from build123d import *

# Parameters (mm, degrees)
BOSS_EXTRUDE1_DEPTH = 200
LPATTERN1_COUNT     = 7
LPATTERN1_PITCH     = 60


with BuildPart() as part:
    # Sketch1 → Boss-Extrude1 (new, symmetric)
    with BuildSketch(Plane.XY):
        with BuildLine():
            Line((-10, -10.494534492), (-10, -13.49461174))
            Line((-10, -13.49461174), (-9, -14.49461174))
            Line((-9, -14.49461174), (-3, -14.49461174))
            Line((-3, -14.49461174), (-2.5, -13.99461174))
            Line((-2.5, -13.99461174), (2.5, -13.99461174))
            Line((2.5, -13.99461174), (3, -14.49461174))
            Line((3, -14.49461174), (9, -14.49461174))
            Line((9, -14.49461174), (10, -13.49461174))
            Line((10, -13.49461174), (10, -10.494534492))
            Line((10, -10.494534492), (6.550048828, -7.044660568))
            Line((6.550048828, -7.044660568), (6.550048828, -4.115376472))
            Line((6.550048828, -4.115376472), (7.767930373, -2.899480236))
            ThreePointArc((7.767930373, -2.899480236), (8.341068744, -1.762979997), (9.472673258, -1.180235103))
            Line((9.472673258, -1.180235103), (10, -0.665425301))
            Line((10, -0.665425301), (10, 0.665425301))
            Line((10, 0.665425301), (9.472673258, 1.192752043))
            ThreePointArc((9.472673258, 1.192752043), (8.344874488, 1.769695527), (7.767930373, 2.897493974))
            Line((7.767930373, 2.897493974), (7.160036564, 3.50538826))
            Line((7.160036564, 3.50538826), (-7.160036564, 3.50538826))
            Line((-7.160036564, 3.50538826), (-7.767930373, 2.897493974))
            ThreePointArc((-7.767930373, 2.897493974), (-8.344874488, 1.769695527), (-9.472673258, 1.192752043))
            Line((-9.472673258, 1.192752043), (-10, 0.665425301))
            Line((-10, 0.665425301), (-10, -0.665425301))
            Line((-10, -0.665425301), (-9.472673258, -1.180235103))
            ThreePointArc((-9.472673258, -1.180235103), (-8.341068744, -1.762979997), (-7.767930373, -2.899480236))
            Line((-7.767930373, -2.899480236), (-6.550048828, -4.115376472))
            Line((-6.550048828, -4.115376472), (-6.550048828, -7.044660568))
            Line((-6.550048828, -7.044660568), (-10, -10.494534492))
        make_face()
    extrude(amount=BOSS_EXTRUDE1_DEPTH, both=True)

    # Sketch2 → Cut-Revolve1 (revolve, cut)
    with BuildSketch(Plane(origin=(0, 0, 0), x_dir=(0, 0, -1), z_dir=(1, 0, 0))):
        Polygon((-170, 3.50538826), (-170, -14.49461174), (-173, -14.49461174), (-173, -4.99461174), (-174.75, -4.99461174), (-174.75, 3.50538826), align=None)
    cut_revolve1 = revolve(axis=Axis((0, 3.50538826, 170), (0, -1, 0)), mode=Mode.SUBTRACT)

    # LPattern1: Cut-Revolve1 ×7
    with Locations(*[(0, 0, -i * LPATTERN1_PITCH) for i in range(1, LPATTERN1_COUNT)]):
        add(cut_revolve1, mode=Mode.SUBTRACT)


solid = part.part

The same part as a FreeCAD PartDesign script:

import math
import FreeCAD as App
import Part
import Sketcher
from FreeCAD import Vector

doc = App.newDocument("Part")
body = doc.addObject("PartDesign::Body", "Body")

# Sketch on XY plane
sketch1 = body.newObject("Sketcher::SketchObject", "Sketch")
sketch1.AttachmentSupport = (doc.getObject("XY_Plane"), [""])
sketch1.MapMode = "FlatFace"
sketch1.addGeometry([
    Part.LineSegment(Vector(-10, -10.5, 0), Vector(-10, -13.5, 0)),  # 0
    Part.LineSegment(Vector(-10, -13.5, 0), Vector(-9, -14.5, 0)),  # 1
    Part.LineSegment(Vector(-9, -14.5, 0), Vector(-3, -14.5, 0)),  # 2
    Part.LineSegment(Vector(-3, -14.5, 0), Vector(-2.5, -14, 0)),  # 3
    Part.LineSegment(Vector(-2.5, -14, 0), Vector(2.5, -14, 0)),  # 4
    Part.LineSegment(Vector(2.5, -14, 0), Vector(3, -14.5, 0)),  # 5
    Part.LineSegment(Vector(3, -14.5, 0), Vector(9, -14.5, 0)),  # 6
    Part.LineSegment(Vector(9, -14.5, 0), Vector(10, -13.5, 0)),  # 7
    Part.LineSegment(Vector(10, -13.5, 0), Vector(10, -10.5, 0)),  # 8
    Part.LineSegment(Vector(10, -10.5, 0), Vector(6.6, -7, 0)),  # 9
    Part.LineSegment(Vector(6.6, -7, 0), Vector(6.6, -4.1, 0)),  # 10
    Part.LineSegment(Vector(6.6, -4.1, 0), Vector(7.8, -2.9, 0)),  # 11
    Part.ArcOfCircle(Part.Circle(Vector(9.8, -3.2, 0), Vector(0, 0, 1), 2.1), math.radians(99), math.radians(171)),  # 12
    Part.LineSegment(Vector(9.5, -1.2, 0), Vector(10, -0.7, 0)),  # 13
    Part.LineSegment(Vector(10, -0.7, 0), Vector(10, 0.7, 0)),  # 14
    Part.LineSegment(Vector(10, 0.7, 0), Vector(9.5, 1.2, 0)),  # 15
    Part.ArcOfCircle(Part.Circle(Vector(9.8, 3.2, 0), Vector(0, 0, 1), 2.1), math.radians(-171), math.radians(-99)),  # 16
    Part.LineSegment(Vector(7.8, 2.9, 0), Vector(7.2, 3.5, 0)),  # 17
    Part.LineSegment(Vector(7.2, 3.5, 0), Vector(-7.2, 3.5, 0)),  # 18
    Part.LineSegment(Vector(-7.2, 3.5, 0), Vector(-7.8, 2.9, 0)),  # 19
    Part.ArcOfCircle(Part.Circle(Vector(-9.8, 3.2, 0), Vector(0, 0, 1), 2.1), math.radians(-81), math.radians(-9)),  # 20
    Part.LineSegment(Vector(-9.5, 1.2, 0), Vector(-10, 0.7, 0)),  # 21
    Part.LineSegment(Vector(-10, 0.7, 0), Vector(-10, -0.7, 0)),  # 22
    Part.LineSegment(Vector(-10, -0.7, 0), Vector(-9.5, -1.2, 0)),  # 23
    Part.ArcOfCircle(Part.Circle(Vector(-9.8, -3.2, 0), Vector(0, 0, 1), 2.1), math.radians(9), math.radians(81)),  # 24
    Part.LineSegment(Vector(-7.8, -2.9, 0), Vector(-6.6, -4.1, 0)),  # 25
    Part.LineSegment(Vector(-6.6, -4.1, 0), Vector(-6.6, -7, 0)),  # 26
    Part.LineSegment(Vector(-6.6, -7, 0), Vector(-10, -10.5, 0)),  # 27
], False)
sketch1.addConstraint([
    Sketcher.Constraint("Coincident", 0, 2, 1, 1),
    Sketcher.Constraint("Coincident", 1, 2, 2, 1),
    Sketcher.Constraint("Coincident", 2, 2, 3, 1),
    Sketcher.Constraint("Coincident", 3, 2, 4, 1),
    Sketcher.Constraint("Coincident", 4, 2, 5, 1),
    Sketcher.Constraint("Coincident", 5, 2, 6, 1),
    Sketcher.Constraint("Coincident", 6, 2, 7, 1),
    Sketcher.Constraint("Coincident", 7, 2, 8, 1),
    Sketcher.Constraint("Coincident", 8, 2, 9, 1),
    Sketcher.Constraint("Coincident", 9, 2, 10, 1),
    Sketcher.Constraint("Coincident", 10, 2, 11, 1),
    Sketcher.Constraint("Coincident", 11, 2, 12, 2),
    Sketcher.Constraint("Coincident", 12, 1, 13, 1),
    Sketcher.Constraint("Coincident", 13, 2, 14, 1),
    Sketcher.Constraint("Coincident", 14, 2, 15, 1),
    Sketcher.Constraint("Coincident", 15, 2, 16, 2),
    Sketcher.Constraint("Coincident", 16, 1, 17, 1),
    Sketcher.Constraint("Coincident", 17, 2, 18, 1),
    Sketcher.Constraint("Coincident", 18, 2, 19, 1),
    Sketcher.Constraint("Coincident", 19, 2, 20, 2),
    Sketcher.Constraint("Coincident", 20, 1, 21, 1),
    Sketcher.Constraint("Coincident", 21, 2, 22, 1),
    Sketcher.Constraint("Coincident", 22, 2, 23, 1),
    Sketcher.Constraint("Coincident", 23, 2, 24, 2),
    Sketcher.Constraint("Coincident", 24, 1, 25, 1),
    Sketcher.Constraint("Coincident", 25, 2, 26, 1),
    Sketcher.Constraint("Coincident", 26, 2, 27, 1),
    Sketcher.Constraint("Coincident", 27, 2, 0, 1),
    Sketcher.Constraint("Vertical", 0),
    Sketcher.Constraint("Horizontal", 2),
    Sketcher.Constraint("Horizontal", 4),
    Sketcher.Constraint("Horizontal", 6),
    Sketcher.Constraint("Vertical", 8),
    Sketcher.Constraint("Vertical", 10),
    Sketcher.Constraint("Vertical", 14),
    Sketcher.Constraint("Horizontal", 18),
    Sketcher.Constraint("Vertical", 22),
    Sketcher.Constraint("Vertical", 26),
    Sketcher.Constraint("Equal", 12, 16),
    Sketcher.Constraint("Equal", 16, 20),
    Sketcher.Constraint("Equal", 20, 24),
    Sketcher.Constraint("Symmetric", 13, 2, 21, 2, -1, 1),
    Sketcher.Constraint("Symmetric", 16, 3, 20, 3, -2),
    Sketcher.Constraint("Symmetric", 12, 3, 24, 3, -2),
    Sketcher.Constraint("Symmetric", 2, 2, 5, 2, -2),
    Sketcher.Constraint("Symmetric", 0, 2, 7, 2, -2),
    Sketcher.Constraint("Symmetric", 10, 2, 25, 2, -2),
    Sketcher.Constraint("Perpendicular", 1, 3),
    Sketcher.Constraint("Perpendicular", 3, 5),
    Sketcher.Constraint("Perpendicular", 5, 7),
    Sketcher.Constraint("Perpendicular", 7, 15),
    Sketcher.Constraint("Parallel", 15, 17),
    Sketcher.Constraint("Perpendicular", 17, 19),
    Sketcher.Constraint("Parallel", 19, 21),
    Sketcher.Constraint("Horizontal", 16, 1, 19, 2),
    Sketcher.Constraint("Horizontal", 15, 2, 20, 1),
    Sketcher.Constraint("Horizontal", 14, 2, 21, 2),
    Sketcher.Constraint("Horizontal", 13, 2, 22, 2),
    Sketcher.Constraint("Horizontal", 12, 1, 23, 2),
    Sketcher.Constraint("Horizontal", 11, 2, 24, 1),
    Sketcher.Constraint("Horizontal", 9, 2, 26, 2),
    Sketcher.Constraint("Horizontal", 8, 2, 27, 2),
    Sketcher.Constraint("Vertical", 8, 2, 13, 2),
    Sketcher.Constraint("Vertical", 12, 1, 15, 2),
    Sketcher.Constraint("Vertical", 11, 2, 16, 1),
    Sketcher.Constraint("DistanceX", 2, 1, 2, 2, 6.0),
    Sketcher.Constraint("DistanceX", 4, 1, 4, 2, 5.0),
    Sketcher.Constraint("Radius", 12, 2.059999),
    Sketcher.Constraint("DistanceX", 0, 2, -1, 1, 10.0),
    Sketcher.Constraint("DistanceX", 1, 2, -1, 1, 9.0),
    Sketcher.Constraint("DistanceY", 14, 1, 14, 2, 1.330851),
    Sketcher.Constraint("DistanceY", 12, 3, 12, 1, 2.033202),
    Sketcher.Constraint("DistanceY", 25, 2, 21, 2, 4.780802),
    Sketcher.Constraint("Distance", 11, 1.720941),
    Sketcher.Constraint("DistanceX", 18, 2, 18, 1, 14.320073),
    Sketcher.Constraint("DistanceY", 0, 2, 0, 1, 3.000077),
    Sketcher.Constraint("DistanceY", 10, 1, 10, 2, 2.929284),
    Sketcher.Constraint("DistanceY", 0, 2, -1, 1, 13.494612),
    Sketcher.Constraint("DistanceX", -1, 1, 9, 2, 6.550049),
    Sketcher.Constraint("DistanceX", -1, 1, 11, 2, 7.76793),
    Sketcher.Constraint("DistanceY", -1, 1, 17, 2, 3.505388),
    Sketcher.Constraint("DistanceX", 16, 3, 12, 3, 0.002351),
])
pad1 = body.newObject("PartDesign::Pad", "Pad")
pad1.Profile = sketch1
pad1.Length = 400
pad1.Midplane = True

# Sketch on YZ plane
sketch2 = body.newObject("Sketcher::SketchObject", "Sketch001")
sketch2.AttachmentSupport = (doc.getObject("YZ_Plane"), [""])
sketch2.MapMode = "FlatFace"
sketch2.addGeometry([
    Part.LineSegment(Vector(-14.5, 170, 0), Vector(3.5, 170, 0)),  # 0
    Part.LineSegment(Vector(3.5, 170, 0), Vector(3.5, 174.8, 0)),  # 1
    Part.LineSegment(Vector(3.5, 174.8, 0), Vector(-5, 174.8, 0)),  # 2
    Part.LineSegment(Vector(-5, 174.8, 0), Vector(-5, 173, 0)),  # 3
    Part.LineSegment(Vector(-5, 173, 0), Vector(-14.5, 173, 0)),  # 4
    Part.LineSegment(Vector(-14.5, 173, 0), Vector(-14.5, 170, 0)),  # 5
], False)
sketch2.addGeometry(Part.LineSegment(Vector(3.5, 170, 0), Vector(-14.5, 170, 0)), True)  # axis
sketch2.addConstraint([
    Sketcher.Constraint("Coincident", 0, 2, 1, 1),
    Sketcher.Constraint("Coincident", 1, 2, 2, 1),
    Sketcher.Constraint("Coincident", 2, 2, 3, 1),
    Sketcher.Constraint("Coincident", 3, 2, 4, 1),
    Sketcher.Constraint("Coincident", 4, 2, 5, 1),
    Sketcher.Constraint("Coincident", 5, 2, 0, 1),
    Sketcher.Constraint("Horizontal", 0),
    Sketcher.Constraint("Vertical", 1),
    Sketcher.Constraint("Horizontal", 2),
    Sketcher.Constraint("Vertical", 3),
    Sketcher.Constraint("Horizontal", 4),
    Sketcher.Constraint("Vertical", 5),
    Sketcher.Constraint("Horizontal", 6),
    Sketcher.Constraint("Coincident", 6, 1, 0, 2),
    Sketcher.Constraint("Vertical", 4, 2, 6, 2),
    Sketcher.Constraint("DistanceX", 0, 1, 0, 2, 18.0),
    Sketcher.Constraint("DistanceY", 5, 2, 5, 1, 3.0),
    Sketcher.Constraint("DistanceX", 2, 2, 2, 1, 8.5),
    Sketcher.Constraint("DistanceY", -1, 1, 0, 2, 170.0),
    Sketcher.Constraint("DistanceY", 1, 1, 1, 2, 4.75),
    Sketcher.Constraint("DistanceX", -1, 1, 0, 2, 3.505388),
])
groove = body.newObject("PartDesign::Groove", "Groove")
groove.Profile = sketch2
groove.ReferenceAxis = (sketch2, ["Axis0"])
groove.Angle = 360
doc.recompute()

linearpattern = body.newObject("PartDesign::LinearPattern", "LinearPattern")
linearpattern.Originals = [groove]
linearpattern.Direction = (doc.getObject("Z_Axis"), [""])
linearpattern.Mode = "offset"
linearpattern.Offset = 60
linearpattern.Occurrences = 7
linearpattern.Reversed = True
body.Tip = linearpattern

doc.recompute()
